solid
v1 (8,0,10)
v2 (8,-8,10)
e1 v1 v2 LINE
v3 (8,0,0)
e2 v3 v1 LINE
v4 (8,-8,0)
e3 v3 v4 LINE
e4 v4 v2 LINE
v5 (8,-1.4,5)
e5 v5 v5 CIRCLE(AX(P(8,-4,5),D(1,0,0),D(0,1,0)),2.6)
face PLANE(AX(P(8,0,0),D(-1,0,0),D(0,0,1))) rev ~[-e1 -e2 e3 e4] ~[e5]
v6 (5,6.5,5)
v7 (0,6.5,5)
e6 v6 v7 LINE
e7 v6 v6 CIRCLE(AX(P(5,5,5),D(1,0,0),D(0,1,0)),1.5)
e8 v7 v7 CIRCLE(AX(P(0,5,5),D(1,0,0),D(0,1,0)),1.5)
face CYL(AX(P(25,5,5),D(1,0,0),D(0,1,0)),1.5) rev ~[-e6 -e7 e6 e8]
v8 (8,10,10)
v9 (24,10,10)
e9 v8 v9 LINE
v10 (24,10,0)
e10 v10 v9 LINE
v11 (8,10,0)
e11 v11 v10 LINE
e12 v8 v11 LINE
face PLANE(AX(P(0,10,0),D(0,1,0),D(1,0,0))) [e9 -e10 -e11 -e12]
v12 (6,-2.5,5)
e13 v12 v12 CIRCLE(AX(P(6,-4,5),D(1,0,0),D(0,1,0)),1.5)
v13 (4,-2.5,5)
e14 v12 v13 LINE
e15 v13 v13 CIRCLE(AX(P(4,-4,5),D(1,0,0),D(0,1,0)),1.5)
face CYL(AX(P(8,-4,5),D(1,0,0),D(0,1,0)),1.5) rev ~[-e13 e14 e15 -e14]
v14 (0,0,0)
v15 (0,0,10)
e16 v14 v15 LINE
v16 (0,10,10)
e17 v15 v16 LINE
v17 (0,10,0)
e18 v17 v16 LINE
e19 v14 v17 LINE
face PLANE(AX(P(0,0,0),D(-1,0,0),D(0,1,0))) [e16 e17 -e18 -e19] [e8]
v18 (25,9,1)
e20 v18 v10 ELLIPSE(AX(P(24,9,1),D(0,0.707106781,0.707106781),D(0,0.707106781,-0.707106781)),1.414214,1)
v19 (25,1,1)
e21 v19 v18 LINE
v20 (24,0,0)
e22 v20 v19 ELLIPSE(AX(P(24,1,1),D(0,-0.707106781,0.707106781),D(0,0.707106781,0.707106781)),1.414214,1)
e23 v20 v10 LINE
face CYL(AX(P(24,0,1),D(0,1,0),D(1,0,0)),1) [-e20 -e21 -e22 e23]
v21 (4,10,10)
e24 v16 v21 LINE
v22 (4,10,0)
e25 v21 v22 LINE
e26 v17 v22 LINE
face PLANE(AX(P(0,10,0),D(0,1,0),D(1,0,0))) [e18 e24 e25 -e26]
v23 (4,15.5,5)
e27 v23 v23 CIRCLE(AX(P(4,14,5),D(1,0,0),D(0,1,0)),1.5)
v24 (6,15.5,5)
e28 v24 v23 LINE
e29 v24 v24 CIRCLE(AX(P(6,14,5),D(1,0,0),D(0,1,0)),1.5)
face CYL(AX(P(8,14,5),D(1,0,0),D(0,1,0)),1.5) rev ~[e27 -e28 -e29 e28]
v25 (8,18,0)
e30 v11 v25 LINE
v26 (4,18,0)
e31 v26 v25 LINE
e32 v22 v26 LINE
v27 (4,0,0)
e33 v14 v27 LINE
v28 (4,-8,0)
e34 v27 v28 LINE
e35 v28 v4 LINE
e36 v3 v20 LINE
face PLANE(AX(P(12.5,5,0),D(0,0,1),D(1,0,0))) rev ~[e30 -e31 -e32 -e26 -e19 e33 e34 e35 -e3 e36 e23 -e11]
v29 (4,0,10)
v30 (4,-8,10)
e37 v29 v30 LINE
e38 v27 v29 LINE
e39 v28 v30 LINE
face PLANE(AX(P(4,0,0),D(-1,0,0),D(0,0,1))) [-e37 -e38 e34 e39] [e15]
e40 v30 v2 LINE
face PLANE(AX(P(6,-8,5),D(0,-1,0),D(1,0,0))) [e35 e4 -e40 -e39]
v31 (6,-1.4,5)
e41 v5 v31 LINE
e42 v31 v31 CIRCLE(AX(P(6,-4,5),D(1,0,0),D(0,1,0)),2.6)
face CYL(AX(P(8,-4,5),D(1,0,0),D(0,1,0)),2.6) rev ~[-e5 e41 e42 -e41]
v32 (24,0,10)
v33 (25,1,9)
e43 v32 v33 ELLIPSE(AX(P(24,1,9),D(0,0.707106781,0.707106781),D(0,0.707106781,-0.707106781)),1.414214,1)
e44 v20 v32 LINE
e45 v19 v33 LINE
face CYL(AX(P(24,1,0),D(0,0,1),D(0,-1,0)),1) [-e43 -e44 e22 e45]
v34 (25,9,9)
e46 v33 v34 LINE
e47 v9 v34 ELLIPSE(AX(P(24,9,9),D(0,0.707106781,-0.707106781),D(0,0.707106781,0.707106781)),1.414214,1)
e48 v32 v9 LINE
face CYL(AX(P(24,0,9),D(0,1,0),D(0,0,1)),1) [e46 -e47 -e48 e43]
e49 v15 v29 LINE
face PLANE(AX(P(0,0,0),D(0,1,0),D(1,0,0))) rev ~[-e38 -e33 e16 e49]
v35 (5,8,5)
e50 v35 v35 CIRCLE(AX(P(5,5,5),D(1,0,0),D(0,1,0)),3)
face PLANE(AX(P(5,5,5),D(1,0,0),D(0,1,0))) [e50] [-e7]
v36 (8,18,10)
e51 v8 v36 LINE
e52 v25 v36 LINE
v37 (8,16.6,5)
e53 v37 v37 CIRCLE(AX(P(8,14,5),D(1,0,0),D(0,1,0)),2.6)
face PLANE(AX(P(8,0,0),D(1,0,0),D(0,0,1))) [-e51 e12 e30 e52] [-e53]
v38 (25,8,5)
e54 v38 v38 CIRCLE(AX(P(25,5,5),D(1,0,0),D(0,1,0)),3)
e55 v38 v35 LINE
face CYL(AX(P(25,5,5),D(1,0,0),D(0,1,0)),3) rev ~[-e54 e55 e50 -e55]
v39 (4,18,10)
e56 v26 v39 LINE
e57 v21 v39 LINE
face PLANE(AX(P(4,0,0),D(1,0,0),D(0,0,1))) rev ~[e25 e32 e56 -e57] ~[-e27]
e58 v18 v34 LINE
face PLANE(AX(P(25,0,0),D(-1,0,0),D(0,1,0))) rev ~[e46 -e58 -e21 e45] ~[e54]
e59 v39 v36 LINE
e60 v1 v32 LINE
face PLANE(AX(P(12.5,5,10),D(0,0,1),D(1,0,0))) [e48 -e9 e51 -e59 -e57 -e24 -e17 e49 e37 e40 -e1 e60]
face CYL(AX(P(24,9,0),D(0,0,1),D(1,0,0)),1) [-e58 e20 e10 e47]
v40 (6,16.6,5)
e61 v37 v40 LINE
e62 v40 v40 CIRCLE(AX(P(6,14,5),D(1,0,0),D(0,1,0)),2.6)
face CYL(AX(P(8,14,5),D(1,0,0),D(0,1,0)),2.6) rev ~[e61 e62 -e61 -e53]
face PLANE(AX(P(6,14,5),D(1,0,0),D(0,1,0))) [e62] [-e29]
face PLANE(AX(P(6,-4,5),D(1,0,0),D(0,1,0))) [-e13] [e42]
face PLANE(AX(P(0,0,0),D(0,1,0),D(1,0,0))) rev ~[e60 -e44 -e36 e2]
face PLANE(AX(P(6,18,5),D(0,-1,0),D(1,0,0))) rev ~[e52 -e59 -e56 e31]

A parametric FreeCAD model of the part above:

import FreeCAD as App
import Part
import Sketcher
Q = App.Units.Quantity


def edges_at(feature, points):
    """Names of the edges that pass closest to the given points."""
    edges = feature.Shape.Edges
    near = lambda p: min(range(len(edges)), key=lambda i: edges[i].distToShape(Part.Vertex(*p))[0])
    return sorted({f"Edge{near(p) + 1}" for p in points})

doc = App.newDocument("Part")
body = doc.addObject("PartDesign::Body", "Body")

sketch1 = body.newObject("Sketcher::SketchObject", "Sketch")
sketch1.AttachmentSupport = (doc.getObject("XY_Plane"), [""])
sketch1.MapMode = "FlatFace"
sketch1.addGeometry([
    Part.LineSegment(App.Vector(0, 10, 0), App.Vector(0, 0, 0)),
    Part.LineSegment(App.Vector(0, 0, 0), App.Vector(25, 0, 0)),
    Part.LineSegment(App.Vector(25, 0, 0), App.Vector(25, 10, 0)),
    Part.LineSegment(App.Vector(25, 10, 0), App.Vector(0, 10, 0)),
], False)
sketch1.addConstraint([
    Sketcher.Constraint("Coincident", 0, 2, 1, 1),
    Sketcher.Constraint("Coincident", 1, 2, 2, 1),
    Sketcher.Constraint("Coincident", 2, 2, 3, 1),
    Sketcher.Constraint("Coincident", 3, 2, 0, 1),
    Sketcher.Constraint("Vertical", 0),
    Sketcher.Constraint("Horizontal", 1),
    Sketcher.Constraint("Vertical", 2),
    Sketcher.Constraint("Horizontal", 3),
    Sketcher.Constraint("Coincident", 0, 2, -1, 1),
    Sketcher.Constraint("DistanceX", 1, 1, 1, 2, Q("25 mm")),
    Sketcher.Constraint("DistanceY", 0, 2, 0, 1, Q("10 mm")),
])
pad1 = body.newObject("PartDesign::Pad", "Pad")
pad1.Profile = sketch1
pad1.Length = 10

sketch2 = body.newObject("Sketcher::SketchObject", "Sketch001")
sketch2.AttachmentSupport = (doc.getObject("XZ_Plane"), [""])
sketch2.MapMode = "FlatFace"
sketch2.addGeometry([
    Part.LineSegment(App.Vector(4, 10, 0), App.Vector(4, 0, 0)),
    Part.LineSegment(App.Vector(4, 0, 0), App.Vector(8, 0, 0)),
    Part.LineSegment(App.Vector(8, 0, 0), App.Vector(8, 10, 0)),
    Part.LineSegment(App.Vector(8, 10, 0), App.Vector(4, 10, 0)),
], False)
sketch2.addConstraint([
    Sketcher.Constraint("Coincident", 0, 2, 1, 1),
    Sketcher.Constraint("Coincident", 1, 2, 2, 1),
    Sketcher.Constraint("Coincident", 2, 2, 3, 1),
    Sketcher.Constraint("Coincident", 3, 2, 0, 1),
    Sketcher.Constraint("Vertical", 0),
    Sketcher.Constraint("Horizontal", 1),
    Sketcher.Constraint("Vertical", 2),
    Sketcher.Constraint("Horizontal", 3),
    Sketcher.Constraint("PointOnObject", 0, 2, -1),
    Sketcher.Constraint("DistanceX", 1, 1, 1, 2, Q("4 mm")),
    Sketcher.Constraint("DistanceY", 0, 2, 0, 1, Q("10 mm")),
    Sketcher.Constraint("DistanceX", -1, 1, 0, 2, Q("4 mm")),
])
pad2 = body.newObject("PartDesign::Pad", "Pad001")
pad2.Profile = sketch2
pad2.Type = "TwoLengths"
pad2.Length = 8
pad2.Length2 = 18

sketch3 = body.newObject("Sketcher::SketchObject", "Sketch002")
sketch3.AttachmentSupport = (doc.getObject("YZ_Plane"), [""])
sketch3.MapMode = "FlatFace"
sketch3.AttachmentOffset = App.Placement(App.Vector(0, 0, 25), App.Rotation())
sketch3.addGeometry(Part.Circle(App.Vector(5, 5, 0), App.Vector(0, 0, 1), 1.5), False)
sketch3.addConstraint([
    Sketcher.Constraint("Diameter", 0, Q("3 mm")),
    Sketcher.Constraint("DistanceX", -1, 1, 0, 3, Q("5 mm")),
    Sketcher.Constraint("DistanceY", -1, 1, 0, 3, Q("5 mm")),
])
pocket1 = body.newObject("PartDesign::Pocket", "Pocket")
pocket1.Profile = sketch3
pocket1.Type = "ThroughAll"

sketch4 = body.newObject("Sketcher::SketchObject", "Sketch003")
sketch4.AttachmentSupport = (doc.getObject("YZ_Plane"), [""])
sketch4.MapMode = "FlatFace"
sketch4.AttachmentOffset = App.Placement(App.Vector(0, 0, 25), App.Rotation())
sketch4.addGeometry(Part.Circle(App.Vector(5, 5, 0), App.Vector(0, 0, 1), 3), False)
sketch4.addConstraint([
    Sketcher.Constraint("Diameter", 0, Q("6 mm")),
    Sketcher.Constraint("DistanceX", -1, 1, 0, 3, Q("5 mm")),
    Sketcher.Constraint("DistanceY", -1, 1, 0, 3, Q("5 mm")),
])
pocket2 = body.newObject("PartDesign::Pocket", "Pocket001")
pocket2.Profile = sketch4
pocket2.Length = 20

sketch5 = body.newObject("Sketcher::SketchObject", "Sketch004")
sketch5.AttachmentSupport = (doc.getObject("YZ_Plane"), [""])
sketch5.MapMode = "FlatFace"
sketch5.AttachmentOffset = App.Placement(App.Vector(0, 0, 8), App.Rotation())
sketch5.addGeometry([
    Part.Circle(App.Vector(-4, 5, 0), App.Vector(0, 0, 1), 1.5),
    Part.Circle(App.Vector(14, 5, 0), App.Vector(0, 0, 1), 1.5),
], False)
sketch5.addConstraint([
    Sketcher.Constraint("Equal", 0, 1),
    Sketcher.Constraint("Horizontal", 0, 3, 1, 3),
    Sketcher.Constraint("Diameter", 0, Q("3 mm")),
    Sketcher.Constraint("DistanceX", 0, 3, -1, 1, Q("4 mm")),
    Sketcher.Constraint("DistanceY", -1, 1, 0, 3, Q("5 mm")),
    Sketcher.Constraint("DistanceX", -1, 1, 1, 3, Q("14 mm")),
])
pocket3 = body.newObject("PartDesign::Pocket", "Pocket002")
pocket3.Profile = sketch5
pocket3.Type = "ThroughAll"

sketch6 = body.newObject("Sketcher::SketchObject", "Sketch005")
sketch6.AttachmentSupport = (doc.getObject("YZ_Plane"), [""])
sketch6.MapMode = "FlatFace"
sketch6.AttachmentOffset = App.Placement(App.Vector(0, 0, 8), App.Rotation())
sketch6.addGeometry([
    Part.Circle(App.Vector(-4, 5, 0), App.Vector(0, 0, 1), 2.6),
    Part.Circle(App.Vector(14, 5, 0), App.Vector(0, 0, 1), 2.6),
], False)
sketch6.addConstraint([
    Sketcher.Constraint("Equal", 0, 1),
    Sketcher.Constraint("Horizontal", 0, 3, 1, 3),
    Sketcher.Constraint("Diameter", 0, Q("5.2 mm")),
    Sketcher.Constraint("DistanceX", 0, 3, -1, 1, Q("4 mm")),
    Sketcher.Constraint("DistanceY", -1, 1, 0, 3, Q("5 mm")),
    Sketcher.Constraint("DistanceX", -1, 1, 1, 3, Q("14 mm")),
])
pocket4 = body.newObject("PartDesign::Pocket", "Pocket003")
pocket4.Profile = sketch6
pocket4.Length = 2
doc.recompute()

fillet = body.newObject("PartDesign::Fillet", "Fillet")
fillet.Base = (pocket4, edges_at(pocket4, [
    (25, 5, 10),
    (25, 0, 5),
    (25, 5, 0),
    (25, 10, 5),
]))
fillet.Radius = 1

doc.recompute()
